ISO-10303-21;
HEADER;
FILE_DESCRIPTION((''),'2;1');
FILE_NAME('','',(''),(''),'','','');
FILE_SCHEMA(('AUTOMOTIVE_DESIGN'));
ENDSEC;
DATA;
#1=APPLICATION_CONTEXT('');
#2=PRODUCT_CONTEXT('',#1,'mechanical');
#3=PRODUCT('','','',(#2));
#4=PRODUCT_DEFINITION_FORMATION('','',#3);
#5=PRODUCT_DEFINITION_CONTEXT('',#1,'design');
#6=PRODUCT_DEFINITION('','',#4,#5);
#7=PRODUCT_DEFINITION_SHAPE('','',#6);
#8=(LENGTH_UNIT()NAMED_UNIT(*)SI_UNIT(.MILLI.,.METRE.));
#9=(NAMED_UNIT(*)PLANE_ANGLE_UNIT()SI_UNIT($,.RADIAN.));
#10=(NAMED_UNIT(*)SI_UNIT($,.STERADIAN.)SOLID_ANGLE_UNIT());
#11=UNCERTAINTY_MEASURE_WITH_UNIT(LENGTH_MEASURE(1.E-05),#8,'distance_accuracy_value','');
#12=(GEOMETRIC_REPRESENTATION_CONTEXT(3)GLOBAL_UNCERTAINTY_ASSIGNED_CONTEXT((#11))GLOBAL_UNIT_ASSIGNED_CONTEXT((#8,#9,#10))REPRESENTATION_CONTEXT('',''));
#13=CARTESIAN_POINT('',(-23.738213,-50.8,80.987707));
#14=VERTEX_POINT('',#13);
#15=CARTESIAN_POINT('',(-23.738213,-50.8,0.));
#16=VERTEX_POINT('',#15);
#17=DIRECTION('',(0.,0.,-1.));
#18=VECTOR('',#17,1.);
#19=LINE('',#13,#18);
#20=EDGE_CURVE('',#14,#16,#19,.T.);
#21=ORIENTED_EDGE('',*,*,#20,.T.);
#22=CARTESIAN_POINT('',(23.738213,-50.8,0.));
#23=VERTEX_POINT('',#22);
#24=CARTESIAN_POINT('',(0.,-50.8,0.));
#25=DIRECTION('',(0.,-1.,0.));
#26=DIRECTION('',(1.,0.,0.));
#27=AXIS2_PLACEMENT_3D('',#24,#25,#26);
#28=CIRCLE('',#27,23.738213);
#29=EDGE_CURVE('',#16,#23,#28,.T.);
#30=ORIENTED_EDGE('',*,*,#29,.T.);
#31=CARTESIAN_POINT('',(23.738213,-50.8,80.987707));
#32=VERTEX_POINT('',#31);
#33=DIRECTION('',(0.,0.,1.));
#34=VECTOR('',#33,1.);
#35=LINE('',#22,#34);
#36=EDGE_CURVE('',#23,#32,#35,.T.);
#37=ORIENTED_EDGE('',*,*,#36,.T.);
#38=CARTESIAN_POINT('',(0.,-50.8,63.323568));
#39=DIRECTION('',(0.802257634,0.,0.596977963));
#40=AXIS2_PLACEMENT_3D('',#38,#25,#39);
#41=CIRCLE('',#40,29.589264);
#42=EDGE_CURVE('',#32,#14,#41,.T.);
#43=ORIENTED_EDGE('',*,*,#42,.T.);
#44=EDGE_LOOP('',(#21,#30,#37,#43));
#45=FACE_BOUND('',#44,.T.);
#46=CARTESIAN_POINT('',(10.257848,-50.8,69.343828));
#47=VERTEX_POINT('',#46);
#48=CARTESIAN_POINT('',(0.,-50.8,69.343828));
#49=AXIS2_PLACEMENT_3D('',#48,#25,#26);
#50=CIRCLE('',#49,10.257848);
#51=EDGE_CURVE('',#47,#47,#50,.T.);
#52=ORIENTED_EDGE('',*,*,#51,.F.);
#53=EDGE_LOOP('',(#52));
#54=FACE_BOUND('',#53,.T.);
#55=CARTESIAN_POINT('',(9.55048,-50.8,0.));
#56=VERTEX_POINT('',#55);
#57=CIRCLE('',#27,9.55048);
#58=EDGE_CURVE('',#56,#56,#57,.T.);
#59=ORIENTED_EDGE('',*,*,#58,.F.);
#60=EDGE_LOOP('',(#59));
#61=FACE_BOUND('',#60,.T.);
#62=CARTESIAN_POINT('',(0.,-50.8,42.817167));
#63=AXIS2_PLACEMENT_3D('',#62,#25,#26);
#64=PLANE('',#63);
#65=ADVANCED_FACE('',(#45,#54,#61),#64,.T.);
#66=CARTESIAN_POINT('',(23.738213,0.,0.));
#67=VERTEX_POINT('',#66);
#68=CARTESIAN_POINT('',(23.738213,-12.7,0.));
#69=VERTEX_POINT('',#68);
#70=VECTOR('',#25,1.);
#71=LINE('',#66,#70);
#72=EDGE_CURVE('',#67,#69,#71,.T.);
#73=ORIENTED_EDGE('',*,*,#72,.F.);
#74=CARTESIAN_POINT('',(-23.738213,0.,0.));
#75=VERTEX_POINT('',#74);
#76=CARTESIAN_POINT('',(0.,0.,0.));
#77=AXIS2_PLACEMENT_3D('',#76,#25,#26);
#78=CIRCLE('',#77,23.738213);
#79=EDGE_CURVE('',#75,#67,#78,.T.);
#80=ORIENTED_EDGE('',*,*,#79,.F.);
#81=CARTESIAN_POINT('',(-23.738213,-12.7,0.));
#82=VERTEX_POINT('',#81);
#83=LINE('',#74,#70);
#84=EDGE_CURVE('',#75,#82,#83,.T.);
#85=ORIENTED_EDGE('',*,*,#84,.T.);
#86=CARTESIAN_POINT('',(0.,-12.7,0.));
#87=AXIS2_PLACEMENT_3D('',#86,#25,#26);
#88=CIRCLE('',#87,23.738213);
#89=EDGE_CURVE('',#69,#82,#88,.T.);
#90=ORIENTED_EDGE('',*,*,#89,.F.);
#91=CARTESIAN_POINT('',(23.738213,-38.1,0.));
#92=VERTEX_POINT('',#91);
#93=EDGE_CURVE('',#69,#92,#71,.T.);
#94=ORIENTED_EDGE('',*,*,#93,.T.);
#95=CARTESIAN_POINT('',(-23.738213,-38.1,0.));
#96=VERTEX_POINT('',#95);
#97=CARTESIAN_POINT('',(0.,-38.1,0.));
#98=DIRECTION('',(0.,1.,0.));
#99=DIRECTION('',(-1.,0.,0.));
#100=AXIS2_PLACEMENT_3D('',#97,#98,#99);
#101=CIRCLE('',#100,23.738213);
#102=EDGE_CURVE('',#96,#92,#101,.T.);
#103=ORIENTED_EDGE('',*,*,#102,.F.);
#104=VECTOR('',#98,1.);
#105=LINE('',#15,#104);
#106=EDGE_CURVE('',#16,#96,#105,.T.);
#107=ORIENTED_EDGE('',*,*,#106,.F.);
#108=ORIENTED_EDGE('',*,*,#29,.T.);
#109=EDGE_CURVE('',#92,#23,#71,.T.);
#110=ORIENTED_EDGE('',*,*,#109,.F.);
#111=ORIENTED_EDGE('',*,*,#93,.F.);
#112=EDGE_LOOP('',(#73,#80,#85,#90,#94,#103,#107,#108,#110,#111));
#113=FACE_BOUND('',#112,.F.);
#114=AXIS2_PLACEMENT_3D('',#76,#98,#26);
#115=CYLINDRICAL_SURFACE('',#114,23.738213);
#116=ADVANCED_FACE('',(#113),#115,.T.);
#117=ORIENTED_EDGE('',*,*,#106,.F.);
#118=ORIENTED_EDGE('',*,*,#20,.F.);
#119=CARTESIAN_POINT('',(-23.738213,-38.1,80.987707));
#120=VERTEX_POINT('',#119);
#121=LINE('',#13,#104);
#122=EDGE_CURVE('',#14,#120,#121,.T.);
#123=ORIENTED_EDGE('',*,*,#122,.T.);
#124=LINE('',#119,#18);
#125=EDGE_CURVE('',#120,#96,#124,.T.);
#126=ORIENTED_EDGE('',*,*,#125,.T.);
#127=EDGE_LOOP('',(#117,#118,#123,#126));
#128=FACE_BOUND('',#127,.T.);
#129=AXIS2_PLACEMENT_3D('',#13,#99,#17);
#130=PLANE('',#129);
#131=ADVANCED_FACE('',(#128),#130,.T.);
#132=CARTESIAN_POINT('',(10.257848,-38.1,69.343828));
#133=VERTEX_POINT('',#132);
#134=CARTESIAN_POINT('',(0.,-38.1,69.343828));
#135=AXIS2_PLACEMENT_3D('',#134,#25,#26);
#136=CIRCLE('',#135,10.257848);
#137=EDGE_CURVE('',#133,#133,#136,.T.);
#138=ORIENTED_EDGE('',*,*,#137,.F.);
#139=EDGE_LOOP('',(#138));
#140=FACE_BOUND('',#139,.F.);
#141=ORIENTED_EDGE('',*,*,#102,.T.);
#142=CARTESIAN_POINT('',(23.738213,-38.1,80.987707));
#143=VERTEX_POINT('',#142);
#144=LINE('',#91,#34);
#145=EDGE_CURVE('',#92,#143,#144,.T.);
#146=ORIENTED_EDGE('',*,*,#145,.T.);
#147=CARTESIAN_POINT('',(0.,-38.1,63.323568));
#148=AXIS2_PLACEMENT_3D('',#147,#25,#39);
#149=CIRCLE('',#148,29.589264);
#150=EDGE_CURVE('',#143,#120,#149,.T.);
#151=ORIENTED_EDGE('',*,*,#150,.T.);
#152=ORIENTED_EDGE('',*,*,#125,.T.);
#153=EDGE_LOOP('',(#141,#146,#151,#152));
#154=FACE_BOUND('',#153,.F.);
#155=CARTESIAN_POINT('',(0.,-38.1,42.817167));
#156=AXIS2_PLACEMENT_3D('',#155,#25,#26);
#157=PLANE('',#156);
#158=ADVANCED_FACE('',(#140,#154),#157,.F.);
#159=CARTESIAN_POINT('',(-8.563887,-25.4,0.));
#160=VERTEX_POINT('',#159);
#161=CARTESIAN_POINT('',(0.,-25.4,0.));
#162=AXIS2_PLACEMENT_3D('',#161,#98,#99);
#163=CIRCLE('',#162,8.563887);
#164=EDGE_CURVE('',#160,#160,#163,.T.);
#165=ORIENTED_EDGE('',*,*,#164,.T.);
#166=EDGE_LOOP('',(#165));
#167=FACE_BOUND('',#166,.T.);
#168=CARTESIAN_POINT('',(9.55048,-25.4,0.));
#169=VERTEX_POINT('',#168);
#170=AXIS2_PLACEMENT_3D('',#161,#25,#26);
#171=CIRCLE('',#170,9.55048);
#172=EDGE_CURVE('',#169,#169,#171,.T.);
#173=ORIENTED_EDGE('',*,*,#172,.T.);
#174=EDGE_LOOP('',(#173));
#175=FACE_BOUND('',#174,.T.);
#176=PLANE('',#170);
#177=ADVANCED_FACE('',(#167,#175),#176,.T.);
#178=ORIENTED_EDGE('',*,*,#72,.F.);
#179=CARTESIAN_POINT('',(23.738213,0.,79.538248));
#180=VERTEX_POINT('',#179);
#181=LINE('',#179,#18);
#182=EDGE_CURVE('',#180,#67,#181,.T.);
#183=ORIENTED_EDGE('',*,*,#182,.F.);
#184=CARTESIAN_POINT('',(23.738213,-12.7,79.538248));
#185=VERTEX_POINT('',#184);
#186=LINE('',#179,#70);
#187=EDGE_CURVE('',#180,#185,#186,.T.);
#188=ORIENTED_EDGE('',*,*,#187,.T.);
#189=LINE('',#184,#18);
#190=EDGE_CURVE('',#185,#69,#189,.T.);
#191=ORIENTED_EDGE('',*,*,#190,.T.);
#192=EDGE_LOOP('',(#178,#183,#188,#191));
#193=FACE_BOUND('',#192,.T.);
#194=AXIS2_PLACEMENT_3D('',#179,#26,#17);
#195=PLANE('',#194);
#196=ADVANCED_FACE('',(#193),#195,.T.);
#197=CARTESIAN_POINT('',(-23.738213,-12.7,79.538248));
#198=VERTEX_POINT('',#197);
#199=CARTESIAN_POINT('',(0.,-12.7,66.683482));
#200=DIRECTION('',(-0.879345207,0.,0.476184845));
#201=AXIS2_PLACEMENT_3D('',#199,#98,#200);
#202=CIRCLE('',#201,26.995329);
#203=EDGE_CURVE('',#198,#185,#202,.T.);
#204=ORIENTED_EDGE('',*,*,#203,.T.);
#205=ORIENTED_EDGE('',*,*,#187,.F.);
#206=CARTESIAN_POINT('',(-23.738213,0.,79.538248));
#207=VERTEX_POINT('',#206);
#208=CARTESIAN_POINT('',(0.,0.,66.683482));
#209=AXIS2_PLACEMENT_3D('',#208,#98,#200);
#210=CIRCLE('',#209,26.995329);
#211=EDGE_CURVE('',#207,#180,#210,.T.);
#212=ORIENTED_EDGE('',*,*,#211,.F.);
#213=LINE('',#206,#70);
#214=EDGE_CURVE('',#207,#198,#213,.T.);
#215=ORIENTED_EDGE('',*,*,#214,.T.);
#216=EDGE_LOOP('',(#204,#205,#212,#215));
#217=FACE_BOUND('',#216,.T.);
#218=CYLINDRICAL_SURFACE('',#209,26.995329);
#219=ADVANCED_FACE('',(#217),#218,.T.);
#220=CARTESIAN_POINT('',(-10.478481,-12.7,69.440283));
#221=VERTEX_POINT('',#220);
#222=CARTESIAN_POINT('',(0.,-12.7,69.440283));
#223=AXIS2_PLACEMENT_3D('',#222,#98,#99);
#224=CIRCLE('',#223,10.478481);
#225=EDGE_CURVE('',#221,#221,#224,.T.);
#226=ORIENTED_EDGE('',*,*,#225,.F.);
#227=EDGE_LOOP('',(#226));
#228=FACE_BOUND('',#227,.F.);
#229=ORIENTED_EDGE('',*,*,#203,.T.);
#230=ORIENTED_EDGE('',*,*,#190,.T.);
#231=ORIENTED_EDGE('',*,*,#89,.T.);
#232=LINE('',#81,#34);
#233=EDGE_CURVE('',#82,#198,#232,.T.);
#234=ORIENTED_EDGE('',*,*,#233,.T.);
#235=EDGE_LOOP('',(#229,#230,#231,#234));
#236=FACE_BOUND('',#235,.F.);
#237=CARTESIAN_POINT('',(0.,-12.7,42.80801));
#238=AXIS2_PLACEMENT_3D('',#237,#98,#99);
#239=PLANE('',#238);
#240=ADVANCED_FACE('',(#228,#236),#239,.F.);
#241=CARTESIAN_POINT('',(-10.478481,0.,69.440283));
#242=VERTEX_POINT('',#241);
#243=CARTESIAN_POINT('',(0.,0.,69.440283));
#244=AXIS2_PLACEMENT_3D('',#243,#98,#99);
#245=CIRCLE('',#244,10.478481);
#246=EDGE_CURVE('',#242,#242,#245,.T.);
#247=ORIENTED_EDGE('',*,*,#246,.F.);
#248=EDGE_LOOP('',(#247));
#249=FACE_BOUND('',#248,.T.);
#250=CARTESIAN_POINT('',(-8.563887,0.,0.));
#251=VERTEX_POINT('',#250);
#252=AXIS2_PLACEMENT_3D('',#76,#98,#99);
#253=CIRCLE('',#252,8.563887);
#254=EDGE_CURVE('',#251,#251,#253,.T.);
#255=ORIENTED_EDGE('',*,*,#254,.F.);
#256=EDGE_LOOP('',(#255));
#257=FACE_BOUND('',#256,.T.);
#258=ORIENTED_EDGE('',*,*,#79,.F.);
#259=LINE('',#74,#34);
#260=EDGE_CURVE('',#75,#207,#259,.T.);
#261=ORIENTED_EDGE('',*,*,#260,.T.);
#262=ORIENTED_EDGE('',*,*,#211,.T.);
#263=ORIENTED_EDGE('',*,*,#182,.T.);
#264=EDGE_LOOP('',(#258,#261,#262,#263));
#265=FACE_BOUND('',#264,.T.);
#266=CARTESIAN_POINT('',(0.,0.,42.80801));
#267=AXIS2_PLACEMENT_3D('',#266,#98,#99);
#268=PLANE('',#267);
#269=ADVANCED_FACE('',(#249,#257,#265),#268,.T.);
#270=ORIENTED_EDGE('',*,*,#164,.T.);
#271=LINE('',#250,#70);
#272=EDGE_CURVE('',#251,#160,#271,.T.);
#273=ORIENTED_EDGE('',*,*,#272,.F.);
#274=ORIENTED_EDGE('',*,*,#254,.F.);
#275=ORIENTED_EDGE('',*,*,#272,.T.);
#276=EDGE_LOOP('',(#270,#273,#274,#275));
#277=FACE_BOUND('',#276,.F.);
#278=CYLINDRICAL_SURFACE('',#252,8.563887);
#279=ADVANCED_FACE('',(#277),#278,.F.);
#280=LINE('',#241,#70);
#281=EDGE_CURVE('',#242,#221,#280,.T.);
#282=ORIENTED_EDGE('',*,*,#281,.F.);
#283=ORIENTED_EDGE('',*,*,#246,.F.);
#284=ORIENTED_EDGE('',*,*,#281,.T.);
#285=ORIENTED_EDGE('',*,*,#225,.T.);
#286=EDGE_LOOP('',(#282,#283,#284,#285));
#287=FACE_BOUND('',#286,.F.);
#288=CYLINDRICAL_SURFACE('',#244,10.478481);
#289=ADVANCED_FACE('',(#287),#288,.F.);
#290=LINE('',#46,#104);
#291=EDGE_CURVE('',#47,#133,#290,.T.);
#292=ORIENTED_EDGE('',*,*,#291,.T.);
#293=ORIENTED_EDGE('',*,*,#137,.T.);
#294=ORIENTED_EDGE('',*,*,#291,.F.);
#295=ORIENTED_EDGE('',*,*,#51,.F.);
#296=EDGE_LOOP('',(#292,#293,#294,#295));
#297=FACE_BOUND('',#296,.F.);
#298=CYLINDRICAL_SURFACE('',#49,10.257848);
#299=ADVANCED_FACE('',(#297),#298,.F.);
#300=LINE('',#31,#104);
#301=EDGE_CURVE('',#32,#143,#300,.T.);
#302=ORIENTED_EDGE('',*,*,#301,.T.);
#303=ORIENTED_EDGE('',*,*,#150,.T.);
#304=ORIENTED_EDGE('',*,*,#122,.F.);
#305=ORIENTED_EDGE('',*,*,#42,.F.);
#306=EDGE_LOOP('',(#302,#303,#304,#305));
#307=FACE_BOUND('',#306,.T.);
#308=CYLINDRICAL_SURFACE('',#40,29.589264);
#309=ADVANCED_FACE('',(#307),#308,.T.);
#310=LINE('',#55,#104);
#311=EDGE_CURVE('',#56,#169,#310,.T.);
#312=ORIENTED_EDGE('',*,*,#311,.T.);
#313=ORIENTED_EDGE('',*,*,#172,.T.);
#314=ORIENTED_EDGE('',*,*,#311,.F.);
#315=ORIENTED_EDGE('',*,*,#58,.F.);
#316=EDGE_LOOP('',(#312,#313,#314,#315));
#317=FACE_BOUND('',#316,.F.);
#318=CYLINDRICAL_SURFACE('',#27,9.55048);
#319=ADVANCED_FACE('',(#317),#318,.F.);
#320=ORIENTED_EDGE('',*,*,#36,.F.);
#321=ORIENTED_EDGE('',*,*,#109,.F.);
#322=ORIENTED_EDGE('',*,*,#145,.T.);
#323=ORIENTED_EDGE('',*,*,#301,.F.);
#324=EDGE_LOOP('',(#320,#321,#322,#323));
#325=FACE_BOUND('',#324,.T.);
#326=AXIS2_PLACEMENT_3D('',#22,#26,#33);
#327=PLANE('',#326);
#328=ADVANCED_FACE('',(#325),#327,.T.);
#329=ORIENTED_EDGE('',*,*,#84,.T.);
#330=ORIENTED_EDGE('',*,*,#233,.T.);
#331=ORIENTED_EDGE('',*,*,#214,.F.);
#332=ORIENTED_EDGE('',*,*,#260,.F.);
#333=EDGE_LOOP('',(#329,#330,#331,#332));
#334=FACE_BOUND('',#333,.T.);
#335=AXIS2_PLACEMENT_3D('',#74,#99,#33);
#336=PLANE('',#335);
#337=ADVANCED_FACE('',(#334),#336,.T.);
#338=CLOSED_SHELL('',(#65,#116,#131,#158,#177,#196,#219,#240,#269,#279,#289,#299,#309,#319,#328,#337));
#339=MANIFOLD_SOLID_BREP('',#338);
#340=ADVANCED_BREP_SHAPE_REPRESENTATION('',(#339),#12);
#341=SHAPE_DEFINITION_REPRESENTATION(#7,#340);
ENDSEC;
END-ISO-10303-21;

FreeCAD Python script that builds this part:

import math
import FreeCAD as App
import Part
import Sketcher
Q = App.Units.Quantity

doc = App.newDocument("Part")
body = doc.addObject("PartDesign::Body", "Body")

sketch1 = body.newObject("Sketcher::SketchObject", "Sketch")
sketch1.AttachmentSupport = (doc.getObject("XZ_Plane"), [""])
sketch1.MapMode = "FlatFace"
sketch1.addGeometry(Part.Circle(App.Vector(0, 0, 0), App.Vector(0, 0, 1), 24), False)
sketch1.addConstraint(Sketcher.Constraint("Coincident", 0, 3, -1, 1))
sketch1.addConstraint(Sketcher.Constraint("Diameter", 0, 47.476426))
pad1 = body.newObject("PartDesign::Pad", "Pad")
pad1.Profile = sketch1
pad1.Length = Q("2 in")

sketch2 = body.newObject("Sketcher::SketchObject", "Sketch001")
sketch2.AttachmentSupport = (doc.getObject("XZ_Plane"), [""])
sketch2.MapMode = "FlatFace"
sketch2.AttachmentOffset = App.Placement(App.Vector(0, 0, 2 * 25.4), App.Rotation())
sketch2.addGeometry(Part.Circle(App.Vector(0, 0, 0), App.Vector(0, 0, 1), 10), False)
sketch2.addConstraint(Sketcher.Constraint("Coincident", 0, 3, -1, 1))
sketch2.addConstraint(Sketcher.Constraint("Diameter", 0, 19.100959))
pocket1 = body.newObject("PartDesign::Pocket", "Pocket")
pocket1.Profile = sketch2
pocket1.Length = Q("1 in")

sketch3 = body.newObject("Sketcher::SketchObject", "Sketch002")
sketch3.AttachmentSupport = (doc.getObject("XZ_Plane"), [""])
sketch3.MapMode = "FlatFace"
sketch3.addGeometry(Part.Circle(App.Vector(0, 0, 0), App.Vector(0, 0, 1), 9), False)
sketch3.addConstraint(Sketcher.Constraint("Coincident", 0, 3, -1, 1))
sketch3.addConstraint(Sketcher.Constraint("Diameter", 0, 17.127773))
pocket2 = body.newObject("PartDesign::Pocket", "Pocket001")
pocket2.Profile = sketch3
pocket2.Length = Q("1 in")
pocket2.Reversed = True

sketch4 = body.newObject("Sketcher::SketchObject", "Sketch003")
sketch4.AttachmentSupport = (doc.getObject("XZ_Plane"), [""])
sketch4.MapMode = "FlatFace"
sketch4.AttachmentOffset = App.Placement(App.Vector(0, 0, 2 * 25.4), App.Rotation())
sketch4.addGeometry(Part.LineSegment(App.Vector(-24, 81, 0), App.Vector(-24, 0, 0)), False)
sketch4.addGeometry(Part.ArcOfCircle(Part.Circle(App.Vector(0, 0, 0), App.Vector(0, 0, 1), 24), math.radians(0), math.radians(180)), False)
sketch4.addGeometry(Part.LineSegment(App.Vector(24, 0, 0), App.Vector(24, 81, 0)), False)
sketch4.addGeometry(Part.ArcOfCircle(Part.Circle(App.Vector(0, 63, 0), App.Vector(0, 0, 1), 30), math.radians(37), math.radians(143)), False)
sketch4.addConstraint(Sketcher.Constraint("Tangent", 0, 2, 1, 2))
sketch4.addConstraint(Sketcher.Constraint("Tangent", 1, 1, 2, 1))
sketch4.addConstraint(Sketcher.Constraint("Coincident", 2, 2, 3, 1))
sketch4.addConstraint(Sketcher.Constraint("Coincident", 3, 2, 0, 1))
sketch4.addConstraint(Sketcher.Constraint("Vertical", 0))
sketch4.addConstraint(Sketcher.Constraint("Vertical", 2))
sketch4.addConstraint(Sketcher.Constraint("Coincident", 1, 3, -1, 1))
sketch4.addConstraint(Sketcher.Constraint("PointOnObject", 3, 3, -2))
sketch4.addConstraint(Sketcher.Constraint("Radius", 1, 23.738213))
sketch4.addConstraint(Sketcher.Constraint("Radius", 3, 29.589264))
sketch4.addConstraint(Sketcher.Constraint("DistanceY", 0, 2, 0, 1, 80.987707))
pad2 = body.newObject("PartDesign::Pad", "Pad001")
pad2.Profile = sketch4
pad2.Length = Q("0.5 in")
pad2.Reversed = True

sketch5 = body.newObject("Sketcher::SketchObject", "Sketch004")
sketch5.AttachmentSupport = (doc.getObject("XZ_Plane"), [""])
sketch5.MapMode = "FlatFace"
sketch5.addGeometry(Part.LineSegment(App.Vector(24, 80, 0), App.Vector(24, 0, 0)), False)
sketch5.addGeometry(Part.ArcOfCircle(Part.Circle(App.Vector(0, 0, 0), App.Vector(0, 0, 1), 24), math.radians(0), math.radians(180)), False)
sketch5.addGeometry(Part.LineSegment(App.Vector(-24, 0, 0), App.Vector(-24, 80, 0)), False)
sketch5.addGeometry(Part.ArcOfCircle(Part.Circle(App.Vector(0, 67, 0), App.Vector(0, 0, 1), 27), math.radians(28), math.radians(152)), False)
sketch5.addConstraint(Sketcher.Constraint("Tangent", 0, 2, 1, 1))
sketch5.addConstraint(Sketcher.Constraint("Tangent", 1, 2, 2, 1))
sketch5.addConstraint(Sketcher.Constraint("Coincident", 2, 2, 3, 2))
sketch5.addConstraint(Sketcher.Constraint("Coincident", 3, 1, 0, 1))
sketch5.addConstraint(Sketcher.Constraint("Vertical", 0))
sketch5.addConstraint(Sketcher.Constraint("Vertical", 2))
sketch5.addConstraint(Sketcher.Constraint("Coincident", 1, 3, -1, 1))
sketch5.addConstraint(Sketcher.Constraint("PointOnObject", 3, 3, -2))
sketch5.addConstraint(Sketcher.Constraint("Radius", 3, 26.995329))
sketch5.addConstraint(Sketcher.Constraint("Radius", 1, 23.738213))
sketch5.addConstraint(Sketcher.Constraint("DistanceY", 0, 2, 0, 1, 79.538248))
pad3 = body.newObject("PartDesign::Pad", "Pad002")
pad3.Profile = sketch5
pad3.Length = Q("0.5 in")

sketch6 = body.newObject("Sketcher::SketchObject", "Sketch005")
sketch6.AttachmentSupport = (doc.getObject("XZ_Plane"), [""])
sketch6.MapMode = "FlatFace"
sketch6.addGeometry(Part.Circle(App.Vector(0, 69, 0), App.Vector(0, 0, 1), 10), False)
sketch6.addConstraint(Sketcher.Constraint("PointOnObject", 0, 3, -2))
sketch6.addConstraint(Sketcher.Constraint("Diameter", 0, 20.956962))
sketch6.addConstraint(Sketcher.Constraint("DistanceY", -1, 1, 0, 3, 69.440283))
pocket3 = body.newObject("PartDesign::Pocket", "Pocket002")
pocket3.Profile = sketch6
pocket3.Length = Q("1 in")
pocket3.Reversed = True

sketch7 = body.newObject("Sketcher::SketchObject", "Sketch006")
sketch7.AttachmentSupport = (doc.getObject("XZ_Plane"), [""])
sketch7.MapMode = "FlatFace"
sketch7.AttachmentOffset = App.Placement(App.Vector(0, 0, 2 * 25.4), App.Rotation())
sketch7.addGeometry(Part.Circle(App.Vector(0, 69, 0), App.Vector(0, 0, 1), 10), False)
sketch7.addConstraint(Sketcher.Constraint("PointOnObject", 0, 3, -2))
sketch7.addConstraint(Sketcher.Constraint("Diameter", 0, 20.515697))
sketch7.addConstraint(Sketcher.Constraint("DistanceY", -1, 1, 0, 3, 69.343828))
pocket4 = body.newObject("PartDesign::Pocket", "Pocket003")
pocket4.Profile = sketch7
pocket4.Length = Q("1 in")

doc.recompute()
